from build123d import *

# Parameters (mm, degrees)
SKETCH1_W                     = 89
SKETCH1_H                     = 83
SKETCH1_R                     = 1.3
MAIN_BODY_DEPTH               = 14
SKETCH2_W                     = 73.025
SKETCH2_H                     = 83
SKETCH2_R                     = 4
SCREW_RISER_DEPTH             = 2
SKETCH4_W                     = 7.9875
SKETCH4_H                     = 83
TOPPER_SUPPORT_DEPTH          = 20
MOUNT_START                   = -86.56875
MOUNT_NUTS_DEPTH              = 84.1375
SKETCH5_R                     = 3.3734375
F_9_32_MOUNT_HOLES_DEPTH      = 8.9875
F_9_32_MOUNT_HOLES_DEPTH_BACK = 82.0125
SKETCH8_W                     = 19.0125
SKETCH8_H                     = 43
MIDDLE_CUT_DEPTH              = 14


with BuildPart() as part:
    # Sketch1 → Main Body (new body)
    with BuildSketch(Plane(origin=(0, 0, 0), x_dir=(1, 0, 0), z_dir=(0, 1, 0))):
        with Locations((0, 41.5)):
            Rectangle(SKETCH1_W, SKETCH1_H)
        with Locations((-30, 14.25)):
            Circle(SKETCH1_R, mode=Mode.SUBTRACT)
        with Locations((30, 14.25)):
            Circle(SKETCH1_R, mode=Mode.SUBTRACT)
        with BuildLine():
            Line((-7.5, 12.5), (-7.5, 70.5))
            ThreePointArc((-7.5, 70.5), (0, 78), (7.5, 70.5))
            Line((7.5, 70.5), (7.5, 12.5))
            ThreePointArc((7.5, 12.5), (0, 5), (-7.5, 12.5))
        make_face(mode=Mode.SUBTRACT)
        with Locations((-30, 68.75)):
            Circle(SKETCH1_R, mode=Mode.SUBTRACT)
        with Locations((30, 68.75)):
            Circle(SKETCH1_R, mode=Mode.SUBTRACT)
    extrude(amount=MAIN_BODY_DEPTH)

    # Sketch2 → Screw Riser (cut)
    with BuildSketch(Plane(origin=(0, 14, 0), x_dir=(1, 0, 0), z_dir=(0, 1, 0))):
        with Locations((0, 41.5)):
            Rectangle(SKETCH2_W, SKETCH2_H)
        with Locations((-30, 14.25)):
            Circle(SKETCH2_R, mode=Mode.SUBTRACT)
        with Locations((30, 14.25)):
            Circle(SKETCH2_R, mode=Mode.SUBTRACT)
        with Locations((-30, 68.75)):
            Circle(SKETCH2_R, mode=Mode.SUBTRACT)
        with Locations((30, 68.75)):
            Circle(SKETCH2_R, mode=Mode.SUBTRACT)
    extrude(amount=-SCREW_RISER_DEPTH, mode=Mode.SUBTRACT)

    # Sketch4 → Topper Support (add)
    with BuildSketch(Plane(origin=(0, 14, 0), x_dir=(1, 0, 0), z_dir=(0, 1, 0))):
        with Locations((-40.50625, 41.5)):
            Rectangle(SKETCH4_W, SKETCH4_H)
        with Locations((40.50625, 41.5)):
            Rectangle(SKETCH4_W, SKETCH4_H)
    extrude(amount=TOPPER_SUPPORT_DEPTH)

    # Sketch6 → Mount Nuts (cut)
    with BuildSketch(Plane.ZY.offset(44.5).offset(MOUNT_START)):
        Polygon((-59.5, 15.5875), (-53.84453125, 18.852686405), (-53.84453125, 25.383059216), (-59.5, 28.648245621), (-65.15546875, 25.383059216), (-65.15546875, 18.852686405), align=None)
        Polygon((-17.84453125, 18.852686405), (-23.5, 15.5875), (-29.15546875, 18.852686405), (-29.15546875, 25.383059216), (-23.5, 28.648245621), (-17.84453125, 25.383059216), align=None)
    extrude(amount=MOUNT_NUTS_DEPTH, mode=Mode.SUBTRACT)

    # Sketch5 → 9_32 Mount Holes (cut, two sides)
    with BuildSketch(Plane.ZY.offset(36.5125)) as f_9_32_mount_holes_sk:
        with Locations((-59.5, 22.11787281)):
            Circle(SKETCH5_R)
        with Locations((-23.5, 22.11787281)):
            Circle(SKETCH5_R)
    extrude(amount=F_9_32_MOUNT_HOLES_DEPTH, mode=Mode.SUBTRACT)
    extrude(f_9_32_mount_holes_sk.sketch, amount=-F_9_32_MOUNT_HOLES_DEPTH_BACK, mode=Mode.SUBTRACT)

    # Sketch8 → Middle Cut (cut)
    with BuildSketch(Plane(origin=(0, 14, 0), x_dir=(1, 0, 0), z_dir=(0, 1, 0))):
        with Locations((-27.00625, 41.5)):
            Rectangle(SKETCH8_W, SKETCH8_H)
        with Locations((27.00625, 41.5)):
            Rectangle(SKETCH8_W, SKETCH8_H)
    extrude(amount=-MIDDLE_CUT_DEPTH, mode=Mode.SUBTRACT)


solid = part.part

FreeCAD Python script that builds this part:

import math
import FreeCAD as App
import Part
import Sketcher

V = App.Vector
Q = App.Units.Quantity

doc = App.newDocument("Part")
body = doc.addObject("PartDesign::Body", "Body")

# Sketch on XZ plane
sketch1 = doc.addObject("Sketcher::SketchObject", "Sketch")
body.addObject(sketch1)
sketch1.AttachmentSupport = (doc.XZ_Plane, [""])
sketch1.MapMode = "FlatFace"
sketch1.addGeometry([
    Part.LineSegment(V(-44.5, -83, 0), V(-44.5, 0, 0)),  # 0
    Part.LineSegment(V(-44.5, 0, 0), V(44.5, 0, 0)),  # 1
    Part.LineSegment(V(44.5, 0, 0), V(44.5, -83, 0)),  # 2
    Part.LineSegment(V(44.5, -83, 0), V(-44.5, -83, 0)),  # 3
    Part.Circle(V(-30, -14.2, 0), V(0, 0, 1), 1.3),  # 4
    Part.Circle(V(30, -14.2, 0), V(0, 0, 1), 1.3),  # 5
    Part.Circle(V(-30, -68.8, 0), V(0, 0, 1), 1.3),  # 6
    Part.ArcOfCircle(Part.Circle(V(0, -12.5, 0), V(0, 0, 1), 7.5), math.radians(0), math.radians(180)),  # 7
    Part.LineSegment(V(-7.5, -12.5, 0), V(-7.5, -70.5, 0)),  # 8
    Part.ArcOfCircle(Part.Circle(V(0, -70.5, 0), V(0, 0, 1), 7.5), math.radians(180), math.radians(360)),  # 9
    Part.LineSegment(V(7.5, -70.5, 0), V(7.5, -12.5, 0)),  # 10
    Part.Circle(V(30, -68.8, 0), V(0, 0, 1), 1.3),  # 11
], False)
sketch1.addConstraint([
    Sketcher.Constraint("Coincident", 0, 2, 1, 1),
    Sketcher.Constraint("Coincident", 1, 2, 2, 1),
    Sketcher.Constraint("Coincident", 2, 2, 3, 1),
    Sketcher.Constraint("Coincident", 3, 2, 0, 1),
    Sketcher.Constraint("Tangent", 7, 2, 8, 1),
    Sketcher.Constraint("Tangent", 8, 2, 9, 1),
    Sketcher.Constraint("Tangent", 9, 2, 10, 1),
    Sketcher.Constraint("Tangent", 10, 2, 7, 1),
    Sketcher.Constraint("Vertical", 0),
    Sketcher.Constraint("Horizontal", 1),
    Sketcher.Constraint("Vertical", 2),
    Sketcher.Constraint("Horizontal", 3),
    Sketcher.Constraint("Vertical", 8),
    Sketcher.Constraint("Vertical", 10),
    Sketcher.Constraint("Equal", 4, 5),
    Sketcher.Constraint("Equal", 5, 6),
    Sketcher.Constraint("Equal", 6, 11),
    Sketcher.Constraint("Symmetric", 0, 2, 1, 2, -1, 1),
    Sketcher.Constraint("Symmetric", 4, 3, 5, 3, -2),
    Sketcher.Constraint("Symmetric", 6, 3, 11, 3, -2),
    Sketcher.Constraint("PointOnObject", 7, 3, -2),
    Sketcher.Constraint("Vertical", 4, 3, 6, 3),
    Sketcher.Constraint("Diameter", 4, Q("2.6 mm")),
    Sketcher.Constraint("Radius", 7, Q("7.5 mm")),
    Sketcher.Constraint("DistanceX", 1, 1, 1, 2, Q("89 mm")),
    Sketcher.Constraint("DistanceY", 0, 1, 0, 2, Q("83 mm")),
    Sketcher.Constraint("DistanceY", 8, 2, 8, 1, Q("58 mm")),
    Sketcher.Constraint("DistanceX", 4, 3, -1, 1, Q("30 mm")),
    Sketcher.Constraint("DistanceY", 7, 3, -1, 1, Q("12.5 mm")),
    Sketcher.Constraint("DistanceY", 6, 3, 4, 3, Q("54.5 mm")),
    Sketcher.Constraint("DistanceY", 4, 3, -1, 1, Q("14.25 mm")),
])
pad1 = doc.addObject("PartDesign::Pad", "Pad")
body.addObject(pad1)
pad1.Profile = sketch1
pad1.Length = 14
pad1.Reversed = True

# Sketch on XZ plane
sketch2 = doc.addObject("Sketcher::SketchObject", "Sketch001")
body.addObject(sketch2)
sketch2.AttachmentSupport = (doc.XZ_Plane, [""])
sketch2.MapMode = "FlatFace"
sketch2.AttachmentOffset = App.Placement(V(0, 0, -14), App.Rotation())
sketch2.addGeometry([
    Part.LineSegment(V(-36.5, -83, 0), V(-36.5, 0, 0)),  # 0
    Part.LineSegment(V(-36.5, 0, 0), V(36.5, 0, 0)),  # 1
    Part.LineSegment(V(36.5, 0, 0), V(36.5, -83, 0)),  # 2
    Part.LineSegment(V(36.5, -83, 0), V(-36.5, -83, 0)),  # 3
    Part.Circle(V(-30, -14.2, 0), V(0, 0, 1), 4),  # 4
    Part.Circle(V(30, -14.2, 0), V(0, 0, 1), 4),  # 5
    Part.Circle(V(-30, -68.8, 0), V(0, 0, 1), 4),  # 6
    Part.Circle(V(30, -68.8, 0), V(0, 0, 1), 4),  # 7
], False)
sketch2.addConstraint([
    Sketcher.Constraint("Coincident", 0, 2, 1, 1),
    Sketcher.Constraint("Coincident", 1, 2, 2, 1),
    Sketcher.Constraint("Coincident", 2, 2, 3, 1),
    Sketcher.Constraint("Coincident", 3, 2, 0, 1),
    Sketcher.Constraint("Vertical", 0),
    Sketcher.Constraint("Horizontal", 1),
    Sketcher.Constraint("Vertical", 2),
    Sketcher.Constraint("Horizontal", 3),
    Sketcher.Constraint("Equal", 4, 5),
    Sketcher.Constraint("Equal", 5, 6),
    Sketcher.Constraint("Equal", 6, 7),
    Sketcher.Constraint("Symmetric", 0, 2, 1, 2, -1, 1),
    Sketcher.Constraint("Symmetric", 4, 3, 5, 3, -2),
    Sketcher.Constraint("Symmetric", 6, 3, 7, 3, -2),
    Sketcher.Constraint("Vertical", 4, 3, 6, 3),
    Sketcher.Constraint("Diameter", 4, Q("8 mm")),
    Sketcher.Constraint("DistanceY", 0, 1, 0, 2, Q("83 mm")),
    Sketcher.Constraint("DistanceX", 4, 3, -1, 1, Q("30 mm")),
    Sketcher.Constraint("DistanceY", 6, 3, 4, 3, Q("54.5 mm")),
    Sketcher.Constraint("DistanceX", 1, 1, 1, 2, Q("73.025 mm")),
    Sketcher.Constraint("DistanceY", 4, 3, -1, 1, Q("14.25 mm")),
])
pocket1 = doc.addObject("PartDesign::Pocket", "Pocket")
body.addObject(pocket1)
pocket1.Profile = sketch2
pocket1.Length = 2
pocket1.Reversed = True

# Sketch on XZ plane
sketch3 = doc.addObject("Sketcher::SketchObject", "Sketch002")
body.addObject(sketch3)
sketch3.AttachmentSupport = (doc.XZ_Plane, [""])
sketch3.MapMode = "FlatFace"
sketch3.AttachmentOffset = App.Placement(V(0, 0, -14), App.Rotation())
sketch3.addGeometry([
    Part.LineSegment(V(-44, -83, 0), V(-44, 0, 0)),  # 0
    Part.LineSegment(V(-44, 0, 0), V(-37, 0, 0)),  # 1
    Part.LineSegment(V(-37, 0, 0), V(-37, -83, 0)),  # 2
    Part.LineSegment(V(-37, -83, 0), V(-44, -83, 0)),  # 3
    Part.LineSegment(V(37, -83, 0), V(37, 0, 0)),  # 4
    Part.LineSegment(V(37, 0, 0), V(44, 0, 0)),  # 5
    Part.LineSegment(V(44, 0, 0), V(44, -83, 0)),  # 6
    Part.LineSegment(V(44, -83, 0), V(37, -83, 0)),  # 7
], False)
sketch3.addConstraint([
    Sketcher.Constraint("Coincident", 0, 2, 1, 1),
    Sketcher.Constraint("Coincident", 1, 2, 2, 1),
    Sketcher.Constraint("Coincident", 2, 2, 3, 1),
    Sketcher.Constraint("Coincident", 3, 2, 0, 1),
    Sketcher.Constraint("Coincident", 4, 2, 5, 1),
    Sketcher.Constraint("Coincident", 5, 2, 6, 1),
    Sketcher.Constraint("Coincident", 6, 2, 7, 1),
    Sketcher.Constraint("Coincident", 7, 2, 4, 1),
    Sketcher.Constraint("Vertical", 0),
    Sketcher.Constraint("Horizontal", 1),
    Sketcher.Constraint("Vertical", 2),
    Sketcher.Constraint("Horizontal", 3),
    Sketcher.Constraint("Vertical", 4),
    Sketcher.Constraint("Horizontal", 5),
    Sketcher.Constraint("Vertical", 6),
    Sketcher.Constraint("Horizontal", 7),
    Sketcher.Constraint("Symmetric", 1, 2, 4, 2, -1, 1),
    Sketcher.Constraint("Symmetric", 0, 2, 5, 2, -2),
    Sketcher.Constraint("Horizontal", 3, 2, 6, 2),
    Sketcher.Constraint("DistanceY", 0, 1, 0, 2, Q("83 mm")),
    Sketcher.Constraint("DistanceX", 0, 2, 5, 2, Q("89 mm")),
    Sketcher.Constraint("DistanceX", 1, 1, 1, 2, Q("7.9875 mm")),
])
pad2 = doc.addObject("PartDesign::Pad", "Pad001")
body.addObject(pad2)
pad2.Profile = sketch3
pad2.Length = 20
pad2.Reversed = True

# Sketch on YZ plane
sketch4 = doc.addObject("Sketcher::SketchObject", "Sketch003")
body.addObject(sketch4)
sketch4.AttachmentSupport = (doc.YZ_Plane, [""])
sketch4.MapMode = "FlatFace"
sketch4.AttachmentOffset = App.Placement(V(0, 0, 42.06875), App.Rotation())
sketch4.addGeometry([
    Part.LineSegment(V(16, -60, 0), V(19, -54, 0)),  # 0
    Part.LineSegment(V(19, -54, 0), V(25, -54, 0)),  # 1
    Part.LineSegment(V(25, -54, 0), V(29, -60, 0)),  # 2
    Part.LineSegment(V(29, -60, 0), V(25, -65, 0)),  # 3
    Part.LineSegment(V(25, -65, 0), V(19, -65, 0)),  # 4
    Part.LineSegment(V(19, -65, 0), V(16, -60, 0)),  # 5
    Part.LineSegment(V(16, -24, 0), V(19, -18, 0)),  # 6
    Part.LineSegment(V(19, -18, 0), V(25, -18, 0)),  # 7
    Part.LineSegment(V(25, -18, 0), V(29, -24, 0)),  # 8
    Part.LineSegment(V(29, -24, 0), V(25, -29, 0)),  # 9
    Part.LineSegment(V(25, -29, 0), V(19, -29, 0)),  # 10
    Part.LineSegment(V(19, -29, 0), V(16, -24, 0)),  # 11
], False)
sketch4.addConstraint([
    Sketcher.Constraint("Coincident", 0, 2, 1, 1),
    Sketcher.Constraint("Coincident", 1, 2, 2, 1),
    Sketcher.Constraint("Coincident", 2, 2, 3, 1),
    Sketcher.Constraint("Coincident", 3, 2, 4, 1),
    Sketcher.Constraint("Coincident", 4, 2, 5, 1),
    Sketcher.Constraint("Coincident", 5, 2, 0, 1),
    Sketcher.Constraint("Coincident", 6, 2, 7, 1),
    Sketcher.Constraint("Coincident", 7, 2, 8, 1),
    Sketcher.Constraint("Coincident", 8, 2, 9, 1),
    Sketcher.Constraint("Coincident", 9, 2, 10, 1),
    Sketcher.Constraint("Coincident", 10, 2, 11, 1),
    Sketcher.Constraint("Coincident", 11, 2, 6, 1),
    Sketcher.Constraint("Horizontal", 1),
    Sketcher.Constraint("Horizontal", 4),
    Sketcher.Constraint("Horizontal", 7),
    Sketcher.Constraint("Horizontal", 10),
    Sketcher.Constraint("Parallel", 0, 3),
    Sketcher.Constraint("Parallel", 2, 5),
    Sketcher.Constraint("Parallel", 3, 6),
    Sketcher.Constraint("Parallel", 5, 8),
    Sketcher.Constraint("Parallel", 6, 9),
    Sketcher.Constraint("Parallel", 8, 11),
    Sketcher.Constraint("Horizontal", 2, 2, 5, 2),
    Sketcher.Constraint("Horizontal", 8, 2, 11, 2),
    Sketcher.Constraint("Vertical", 1, 2, 3, 2),
    Sketcher.Constraint("Vertical", 0, 2, 4, 2),
    Sketcher.Constraint("Vertical", 4, 2, 6, 2),
    Sketcher.Constraint("Vertical", 3, 2, 7, 2),
    Sketcher.Constraint("Vertical", 2, 2, 8, 2),
    Sketcher.Constraint("Vertical", 7, 2, 9, 2),
    Sketcher.Constraint("Angle", 0, Q("60 deg")),
    Sketcher.Constraint("DistanceY", 0, 2, 6, 2, Q("36 mm")),
    Sketcher.Constraint("DistanceY", 2, 2, -1, 1, Q("59.5 mm")),
    Sketcher.Constraint("DistanceX", -1, 1, 5, 2, Q("15.5875 mm")),
    Sketcher.Constraint("DistanceX", 1, 1, 1, 2, Q("6.530373 mm")),
    Sketcher.Constraint("DistanceY", 0, 2, -1, 1, Q("53.844531 mm")),
])
pocket2 = doc.addObject("PartDesign::Pocket", "Pocket001")
body.addObject(pocket2)
pocket2.Profile = sketch4
pocket2.Length = 84.1375

# Sketch on YZ plane
sketch5 = doc.addObject("Sketcher::SketchObject", "Sketch004")
body.addObject(sketch5)
sketch5.AttachmentSupport = (doc.YZ_Plane, [""])
sketch5.MapMode = "FlatFace"
sketch5.AttachmentOffset = App.Placement(V(0, 0, -36.5125), App.Rotation())
sketch5.addGeometry([
    Part.Circle(V(22.1, -59.5, 0), V(0, 0, 1), 3.4),
    Part.Circle(V(22.1, -23.5, 0), V(0, 0, 1), 3.4),
], False)
sketch5.addConstraint([
    Sketcher.Constraint("Equal", 0, 1),
    Sketcher.Constraint("Vertical", 0, 3, 1, 3),
    Sketcher.Constraint("DistanceY", 0, 3, 1, 3, Q("36 mm")),
    Sketcher.Constraint("DistanceY", 0, 3, -1, 1, Q("59.5 mm")),
    Sketcher.Constraint("Diameter", 0, Q("6.746875 mm")),
    Sketcher.Constraint("DistanceX", -1, 1, 0, 3, Q("22.117873 mm")),
])
pocket3 = doc.addObject("PartDesign::Pocket", "Pocket002")
body.addObject(pocket3)
pocket3.Profile = sketch5
pocket3.Type = "ThroughAll"
pocket3.Midplane = True

# Sketch on XZ plane
sketch6 = doc.addObject("Sketcher::SketchObject", "Sketch005")
body.addObject(sketch6)
sketch6.AttachmentSupport = (doc.XZ_Plane, [""])
sketch6.MapMode = "FlatFace"
sketch6.AttachmentOffset = App.Placement(V(0, 0, -14), App.Rotation())
sketch6.addGeometry([
    Part.LineSegment(V(-37, -63, 0), V(-37, -20, 0)),  # 0
    Part.LineSegment(V(-37, -20, 0), V(-18, -20, 0)),  # 1
    Part.LineSegment(V(-18, -20, 0), V(-18, -63, 0)),  # 2
    Part.LineSegment(V(-18, -63, 0), V(-37, -63, 0)),  # 3
    Part.LineSegment(V(18, -63, 0), V(18, -20, 0)),  # 4
    Part.LineSegment(V(18, -20, 0), V(37, -20, 0)),  # 5
    Part.LineSegment(V(37, -20, 0), V(37, -63, 0)),  # 6
    Part.LineSegment(V(37, -63, 0), V(18, -63, 0)),  # 7
], False)
sketch6.addConstraint([
    Sketcher.Constraint("Coincident", 0, 2, 1, 1),
    Sketcher.Constraint("Coincident", 1, 2, 2, 1),
    Sketcher.Constraint("Coincident", 2, 2, 3, 1),
    Sketcher.Constraint("Coincident", 3, 2, 0, 1),
    Sketcher.Constraint("Coincident", 4, 2, 5, 1),
    Sketcher.Constraint("Coincident", 5, 2, 6, 1),
    Sketcher.Constraint("Coincident", 6, 2, 7, 1),
    Sketcher.Constraint("Coincident", 7, 2, 4, 1),
    Sketcher.Constraint("Vertical", 0),
    Sketcher.Constraint("Horizontal", 1),
    Sketcher.Constraint("Vertical", 2),
    Sketcher.Constraint("Horizontal", 3),
    Sketcher.Constraint("Vertical", 4),
    Sketcher.Constraint("Horizontal", 5),
    Sketcher.Constraint("Vertical", 6),
    Sketcher.Constraint("Horizontal", 7),
    Sketcher.Constraint("Symmetric", 1, 2, 4, 2, -2),
    Sketcher.Constraint("Symmetric", 3, 2, 6, 2, -2),
    Sketcher.Constraint("DistanceY", 0, 1, 0, 2, Q("43 mm")),
    Sketcher.Constraint("DistanceY", 0, 2, -1, 1, Q("20 mm")),
    Sketcher.Constraint("DistanceX", 1, 2, 4, 2, Q("35 mm")),
    Sketcher.Constraint("DistanceX", 1, 1, 1, 2, Q("19.0125 mm")),
])
pocket4 = doc.addObject("PartDesign::Pocket", "Pocket003")
body.addObject(pocket4)
pocket4.Profile = sketch6
pocket4.Length = 14
pocket4.Reversed = True

doc.recompute()
